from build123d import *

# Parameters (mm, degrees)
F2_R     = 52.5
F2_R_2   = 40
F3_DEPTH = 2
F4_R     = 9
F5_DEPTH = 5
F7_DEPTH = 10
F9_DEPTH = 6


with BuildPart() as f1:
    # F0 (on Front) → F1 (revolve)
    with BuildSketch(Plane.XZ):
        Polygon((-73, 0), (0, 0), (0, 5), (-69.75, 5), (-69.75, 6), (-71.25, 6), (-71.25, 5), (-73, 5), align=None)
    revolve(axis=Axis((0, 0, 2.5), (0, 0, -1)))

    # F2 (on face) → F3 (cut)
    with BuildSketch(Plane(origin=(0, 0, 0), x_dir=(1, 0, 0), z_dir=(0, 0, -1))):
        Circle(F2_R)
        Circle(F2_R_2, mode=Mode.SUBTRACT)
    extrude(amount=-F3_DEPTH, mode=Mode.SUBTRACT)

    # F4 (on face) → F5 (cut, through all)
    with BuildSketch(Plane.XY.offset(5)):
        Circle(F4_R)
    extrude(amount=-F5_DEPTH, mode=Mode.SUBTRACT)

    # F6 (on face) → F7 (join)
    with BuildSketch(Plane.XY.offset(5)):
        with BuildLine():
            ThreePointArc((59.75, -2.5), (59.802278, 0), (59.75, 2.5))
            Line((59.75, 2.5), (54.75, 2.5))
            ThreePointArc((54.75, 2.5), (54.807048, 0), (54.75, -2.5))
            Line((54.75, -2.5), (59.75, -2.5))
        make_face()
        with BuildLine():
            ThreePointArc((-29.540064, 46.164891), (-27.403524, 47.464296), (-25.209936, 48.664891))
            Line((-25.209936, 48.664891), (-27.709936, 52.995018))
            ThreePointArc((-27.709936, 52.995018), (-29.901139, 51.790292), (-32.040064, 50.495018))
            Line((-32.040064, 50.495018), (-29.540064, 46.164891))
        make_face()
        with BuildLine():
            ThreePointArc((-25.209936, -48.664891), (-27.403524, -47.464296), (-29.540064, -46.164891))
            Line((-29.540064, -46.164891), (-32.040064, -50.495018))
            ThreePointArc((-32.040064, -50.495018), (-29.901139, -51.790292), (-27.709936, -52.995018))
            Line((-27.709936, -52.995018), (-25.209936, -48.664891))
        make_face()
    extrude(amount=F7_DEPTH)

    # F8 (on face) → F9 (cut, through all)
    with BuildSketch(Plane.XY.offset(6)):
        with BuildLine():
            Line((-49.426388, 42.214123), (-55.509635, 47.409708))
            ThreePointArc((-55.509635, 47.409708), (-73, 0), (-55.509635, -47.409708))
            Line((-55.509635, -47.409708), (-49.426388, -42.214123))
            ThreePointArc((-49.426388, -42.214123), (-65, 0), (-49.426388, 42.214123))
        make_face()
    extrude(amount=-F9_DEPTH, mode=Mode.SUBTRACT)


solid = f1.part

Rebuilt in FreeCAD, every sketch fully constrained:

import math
import FreeCAD as App
import Part
import Sketcher

V = App.Vector
Q = App.Units.Quantity


def add_polygon(sketch, points):
    """Adds a closed chain of lines whose ends are joined by coincident constraints."""
    first, n = sketch.GeometryCount, len(points)
    for a, b in zip(points, points[1:] + points[:1]):
        sketch.addGeometry(Part.LineSegment(App.Vector(*a, 0), App.Vector(*b, 0)), False)
    for i in range(n):
        sketch.addConstraint(Sketcher.Constraint("Coincident", first + i, 2, first + (i + 1) % n, 1))

doc = App.newDocument("Part")
body = doc.addObject("PartDesign::Body", "Body")

sketch1 = body.newObject("Sketcher::SketchObject", "Sketch")
sketch1.AttachmentSupport = (doc.getObject("XZ_Plane"), [""])
sketch1.MapMode = "FlatFace"
add_polygon(sketch1, [(-73, 0), (0, 0), (0, 5), (-69.8, 5), (-69.8, 6), (-71.2, 6), (-71.2, 5), (-73, 5)])
sketch1.addConstraint([
    Sketcher.Constraint("Horizontal", 0),
    Sketcher.Constraint("Vertical", 1),
    Sketcher.Constraint("Horizontal", 2),
    Sketcher.Constraint("Vertical", 3),
    Sketcher.Constraint("Horizontal", 4),
    Sketcher.Constraint("Vertical", 5),
    Sketcher.Constraint("Horizontal", 6),
    Sketcher.Constraint("Vertical", 7),
    Sketcher.Constraint("Coincident", 0, 2, -1, 1),
    Sketcher.Constraint("Horizontal", 2, 2, 5, 2),
    Sketcher.Constraint("DistanceX", 0, 1, 0, 2, Q("73 mm")),
    Sketcher.Constraint("DistanceY", 1, 1, 1, 2, Q("5 mm")),
    Sketcher.Constraint("DistanceY", 3, 1, 3, 2, Q("1 mm")),
    Sketcher.Constraint("DistanceX", 4, 2, 4, 1, Q("1.5 mm")),
    Sketcher.Constraint("DistanceX", 2, 2, 2, 1, Q("69.75 mm")),
])
revolution = body.newObject("PartDesign::Revolution", "Revolution")
revolution.Profile = sketch1
revolution.ReferenceAxis = (sketch1, ["V_Axis"])
revolution.Angle = 360

sketch2 = body.newObject("Sketcher::SketchObject", "Sketch001")
sketch2.AttachmentSupport = (doc.getObject("XY_Plane"), [""])
sketch2.MapMode = "FlatFace"
sketch2.addGeometry([
    Part.Circle(V(0, 0, 0), V(0, 0, 1), 52),
    Part.Circle(V(0, 0, 0), V(0, 0, 1), 40),
], False)
sketch2.addConstraint([
    Sketcher.Constraint("Coincident", 0, 3, -1, 1),
    Sketcher.Constraint("Coincident", 1, 3, -1, 1),
    Sketcher.Constraint("Diameter", 0, Q("105 mm")),
    Sketcher.Constraint("Diameter", 1, Q("80 mm")),
])
pocket1 = body.newObject("PartDesign::Pocket", "Pocket")
pocket1.Profile = sketch2
pocket1.Length = 2
pocket1.Reversed = True

sketch3 = body.newObject("Sketcher::SketchObject", "Sketch002")
sketch3.AttachmentSupport = (doc.getObject("XY_Plane"), [""])
sketch3.MapMode = "FlatFace"
sketch3.AttachmentOffset = App.Placement(V(0, 0, 5), App.Rotation())
sketch3.addGeometry(Part.Circle(V(0, 0, 0), V(0, 0, 1), 9), False)
sketch3.addConstraint([
    Sketcher.Constraint("Coincident", 0, 3, -1, 1),
    Sketcher.Constraint("Diameter", 0, Q("18 mm")),
])
pocket2 = body.newObject("PartDesign::Pocket", "Pocket001")
pocket2.Profile = sketch3
pocket2.Type = "ThroughAll"

sketch4 = body.newObject("Sketcher::SketchObject", "Sketch003")
sketch4.AttachmentSupport = (doc.getObject("XY_Plane"), [""])
sketch4.MapMode = "FlatFace"
sketch4.AttachmentOffset = App.Placement(V(0, 0, 5), App.Rotation())
sketch4.addGeometry([
    Part.ArcOfCircle(Part.Circle(V(-0.00044, 0, 0), V(0, 0, 1), 59.802718), math.radians(-2.395898), math.radians(2.395898)),
    Part.LineSegment(V(59.75, 2.5, 0), V(54.75, 2.5, 0)),
    Part.ArcOfCircle(Part.Circle(V(0.000092, 0, 0), V(0, 0, 1), 54.806956), math.radians(-2.614434), math.radians(2.614434)),
    Part.LineSegment(V(54.75, -2.5, 0), V(59.75, -2.5, 0)),
    Part.ArcOfCircle(Part.Circle(V(-0.000034, 0.000048, 0), V(0, 0, 1), 54.806989), math.radians(117.385562), math.radians(122.614427)),
    Part.LineSegment(V(-25.209936, 48.664891, 0), V(-27.709936, 52.995018, 0)),
    Part.ArcOfCircle(Part.Circle(V(0.000263, -0.000467, 0), V(0, 0, 1), 59.802814), math.radians(117.6041), math.radians(122.395889)),
    Part.LineSegment(V(-32.040064, 50.495018, 0), V(-29.540064, 46.164891, 0)),
    Part.ArcOfCircle(Part.Circle(V(-0.000034, -0.000048, 0), V(0, 0, 1), 54.806989), math.radians(-122.614427), math.radians(-117.385562)),
    Part.LineSegment(V(-29.540064, -46.164891, 0), V(-32.040064, -50.495018, 0)),
    Part.ArcOfCircle(Part.Circle(V(0.000263, 0.000467, 0), V(0, 0, 1), 59.802814), math.radians(-122.395889), math.radians(-117.6041)),
    Part.LineSegment(V(-27.709936, -52.995018, 0), V(-25.209936, -48.664891, 0)),
], False)
sketch4.addConstraint([
    Sketcher.Constraint("Coincident", 0, 2, 1, 1),
    Sketcher.Constraint("Coincident", 1, 2, 2, 2),
    Sketcher.Constraint("Coincident", 2, 1, 3, 1),
    Sketcher.Constraint("Coincident", 3, 2, 0, 1),
    Sketcher.Constraint("Coincident", 4, 1, 5, 1),
    Sketcher.Constraint("Coincident", 5, 2, 6, 1),
    Sketcher.Constraint("Coincident", 6, 2, 7, 1),
    Sketcher.Constraint("Coincident", 7, 2, 4, 2),
    Sketcher.Constraint("Coincident", 8, 1, 9, 1),
    Sketcher.Constraint("Coincident", 9, 2, 10, 1),
    Sketcher.Constraint("Coincident", 10, 2, 11, 1),
    Sketcher.Constraint("Coincident", 11, 2, 8, 2),
    Sketcher.Constraint("Horizontal", 1),
    Sketcher.Constraint("Horizontal", 3),
    Sketcher.Constraint("Equal", 4, 8),
    Sketcher.Constraint("Equal", 6, 10),
    Sketcher.Constraint("Symmetric", 4, 3, 8, 3, -1),
    Sketcher.Constraint("Symmetric", 6, 3, 10, 3, -1),
    Sketcher.Constraint("Symmetric", 1, 2, 2, 1, -1),
    Sketcher.Constraint("PointOnObject", 0, 3, -1),
    Sketcher.Constraint("Parallel", 5, 7),
    Sketcher.Constraint("Parallel", 9, 11),
    Sketcher.Constraint("Vertical", 7, 2, 8, 1),
    Sketcher.Constraint("Vertical", 6, 2, 9, 2),
    Sketcher.Constraint("Vertical", 5, 2, 10, 2),
    Sketcher.Constraint("Equal", 5, 7),
    Sketcher.Constraint("DistanceX", 1, 2, 1, 1, Q("5 mm")),
    Sketcher.Constraint("Angle", 5, Q("120 deg")),
    Sketcher.Constraint("Distance", 5, Q("5 mm")),
    Sketcher.Constraint("DistanceY", 2, 1, 1, 2, Q("5 mm")),
    Sketcher.Constraint("DistanceY", 6, 2, 5, 2, Q("2.5 mm")),
    Sketcher.Constraint("DistanceX", -1, 1, 0, 2, Q("59.75 mm")),
    Sketcher.Constraint("Radius", 0, Q("59.802718 mm")),
    Sketcher.Constraint("Radius", 4, Q("54.806989 mm")),
    Sketcher.Constraint("Radius", 2, Q("54.806956 mm")),
    Sketcher.Constraint("Radius", 6, Q("59.802814 mm")),
    Sketcher.Constraint("DistanceX", 4, 1, 10, 3, Q("25.210199 mm")),
    Sketcher.Constraint("DistanceY", -1, 1, 4, 1, Q("48.664891 mm")),
    Sketcher.Constraint("DistanceX", 2, 3, 6, 3, Q("0.000171 mm")),
])
pad1 = body.newObject("PartDesign::Pad", "Pad")
pad1.Profile = sketch4
pad1.Length = 10

sketch5 = body.newObject("Sketcher::SketchObject", "Sketch004")
sketch5.AttachmentSupport = (doc.getObject("XY_Plane"), [""])
sketch5.MapMode = "FlatFace"
sketch5.AttachmentOffset = App.Placement(V(0, 0, 6), App.Rotation())
sketch5.addGeometry([
    Part.LineSegment(V(-49, 42, 0), V(-56, 47, 0)),
    Part.ArcOfCircle(Part.Circle(V(0, 0, 0), V(0, 0, 1), 73), math.radians(139), math.radians(221)),
    Part.LineSegment(V(-56, -47, 0), V(-49, -42, 0)),
    Part.ArcOfCircle(Part.Circle(V(0, 0, 0), V(0, 0, 1), 65), math.radians(140), math.radians(220)),
], False)
sketch5.addConstraint([
    Sketcher.Constraint("Coincident", 0, 2, 1, 1),
    Sketcher.Constraint("Coincident", 1, 2, 2, 1),
    Sketcher.Constraint("Coincident", 2, 2, 3, 2),
    Sketcher.Constraint("Coincident", 3, 1, 0, 1),
    Sketcher.Constraint("Coincident", 1, 3, -1, 1),
    Sketcher.Constraint("Coincident", 3, 3, -1, 1),
    Sketcher.Constraint("Vertical", 0, 2, 1, 2),
    Sketcher.Constraint("Vertical", 2, 2, 3, 1),
    Sketcher.Constraint("Radius", 1, Q("73 mm")),
    Sketcher.Constraint("Radius", 3, Q("65 mm")),
    Sketcher.Constraint("Angle", 0, Q("139.499993 deg")),
    Sketcher.Constraint("DistanceY", -1, 1, 0, 2, Q("47.409708 mm")),
])
pocket3 = body.newObject("PartDesign::Pocket", "Pocket002")
pocket3.Profile = sketch5
pocket3.Type = "ThroughAll"

doc.recompute()
